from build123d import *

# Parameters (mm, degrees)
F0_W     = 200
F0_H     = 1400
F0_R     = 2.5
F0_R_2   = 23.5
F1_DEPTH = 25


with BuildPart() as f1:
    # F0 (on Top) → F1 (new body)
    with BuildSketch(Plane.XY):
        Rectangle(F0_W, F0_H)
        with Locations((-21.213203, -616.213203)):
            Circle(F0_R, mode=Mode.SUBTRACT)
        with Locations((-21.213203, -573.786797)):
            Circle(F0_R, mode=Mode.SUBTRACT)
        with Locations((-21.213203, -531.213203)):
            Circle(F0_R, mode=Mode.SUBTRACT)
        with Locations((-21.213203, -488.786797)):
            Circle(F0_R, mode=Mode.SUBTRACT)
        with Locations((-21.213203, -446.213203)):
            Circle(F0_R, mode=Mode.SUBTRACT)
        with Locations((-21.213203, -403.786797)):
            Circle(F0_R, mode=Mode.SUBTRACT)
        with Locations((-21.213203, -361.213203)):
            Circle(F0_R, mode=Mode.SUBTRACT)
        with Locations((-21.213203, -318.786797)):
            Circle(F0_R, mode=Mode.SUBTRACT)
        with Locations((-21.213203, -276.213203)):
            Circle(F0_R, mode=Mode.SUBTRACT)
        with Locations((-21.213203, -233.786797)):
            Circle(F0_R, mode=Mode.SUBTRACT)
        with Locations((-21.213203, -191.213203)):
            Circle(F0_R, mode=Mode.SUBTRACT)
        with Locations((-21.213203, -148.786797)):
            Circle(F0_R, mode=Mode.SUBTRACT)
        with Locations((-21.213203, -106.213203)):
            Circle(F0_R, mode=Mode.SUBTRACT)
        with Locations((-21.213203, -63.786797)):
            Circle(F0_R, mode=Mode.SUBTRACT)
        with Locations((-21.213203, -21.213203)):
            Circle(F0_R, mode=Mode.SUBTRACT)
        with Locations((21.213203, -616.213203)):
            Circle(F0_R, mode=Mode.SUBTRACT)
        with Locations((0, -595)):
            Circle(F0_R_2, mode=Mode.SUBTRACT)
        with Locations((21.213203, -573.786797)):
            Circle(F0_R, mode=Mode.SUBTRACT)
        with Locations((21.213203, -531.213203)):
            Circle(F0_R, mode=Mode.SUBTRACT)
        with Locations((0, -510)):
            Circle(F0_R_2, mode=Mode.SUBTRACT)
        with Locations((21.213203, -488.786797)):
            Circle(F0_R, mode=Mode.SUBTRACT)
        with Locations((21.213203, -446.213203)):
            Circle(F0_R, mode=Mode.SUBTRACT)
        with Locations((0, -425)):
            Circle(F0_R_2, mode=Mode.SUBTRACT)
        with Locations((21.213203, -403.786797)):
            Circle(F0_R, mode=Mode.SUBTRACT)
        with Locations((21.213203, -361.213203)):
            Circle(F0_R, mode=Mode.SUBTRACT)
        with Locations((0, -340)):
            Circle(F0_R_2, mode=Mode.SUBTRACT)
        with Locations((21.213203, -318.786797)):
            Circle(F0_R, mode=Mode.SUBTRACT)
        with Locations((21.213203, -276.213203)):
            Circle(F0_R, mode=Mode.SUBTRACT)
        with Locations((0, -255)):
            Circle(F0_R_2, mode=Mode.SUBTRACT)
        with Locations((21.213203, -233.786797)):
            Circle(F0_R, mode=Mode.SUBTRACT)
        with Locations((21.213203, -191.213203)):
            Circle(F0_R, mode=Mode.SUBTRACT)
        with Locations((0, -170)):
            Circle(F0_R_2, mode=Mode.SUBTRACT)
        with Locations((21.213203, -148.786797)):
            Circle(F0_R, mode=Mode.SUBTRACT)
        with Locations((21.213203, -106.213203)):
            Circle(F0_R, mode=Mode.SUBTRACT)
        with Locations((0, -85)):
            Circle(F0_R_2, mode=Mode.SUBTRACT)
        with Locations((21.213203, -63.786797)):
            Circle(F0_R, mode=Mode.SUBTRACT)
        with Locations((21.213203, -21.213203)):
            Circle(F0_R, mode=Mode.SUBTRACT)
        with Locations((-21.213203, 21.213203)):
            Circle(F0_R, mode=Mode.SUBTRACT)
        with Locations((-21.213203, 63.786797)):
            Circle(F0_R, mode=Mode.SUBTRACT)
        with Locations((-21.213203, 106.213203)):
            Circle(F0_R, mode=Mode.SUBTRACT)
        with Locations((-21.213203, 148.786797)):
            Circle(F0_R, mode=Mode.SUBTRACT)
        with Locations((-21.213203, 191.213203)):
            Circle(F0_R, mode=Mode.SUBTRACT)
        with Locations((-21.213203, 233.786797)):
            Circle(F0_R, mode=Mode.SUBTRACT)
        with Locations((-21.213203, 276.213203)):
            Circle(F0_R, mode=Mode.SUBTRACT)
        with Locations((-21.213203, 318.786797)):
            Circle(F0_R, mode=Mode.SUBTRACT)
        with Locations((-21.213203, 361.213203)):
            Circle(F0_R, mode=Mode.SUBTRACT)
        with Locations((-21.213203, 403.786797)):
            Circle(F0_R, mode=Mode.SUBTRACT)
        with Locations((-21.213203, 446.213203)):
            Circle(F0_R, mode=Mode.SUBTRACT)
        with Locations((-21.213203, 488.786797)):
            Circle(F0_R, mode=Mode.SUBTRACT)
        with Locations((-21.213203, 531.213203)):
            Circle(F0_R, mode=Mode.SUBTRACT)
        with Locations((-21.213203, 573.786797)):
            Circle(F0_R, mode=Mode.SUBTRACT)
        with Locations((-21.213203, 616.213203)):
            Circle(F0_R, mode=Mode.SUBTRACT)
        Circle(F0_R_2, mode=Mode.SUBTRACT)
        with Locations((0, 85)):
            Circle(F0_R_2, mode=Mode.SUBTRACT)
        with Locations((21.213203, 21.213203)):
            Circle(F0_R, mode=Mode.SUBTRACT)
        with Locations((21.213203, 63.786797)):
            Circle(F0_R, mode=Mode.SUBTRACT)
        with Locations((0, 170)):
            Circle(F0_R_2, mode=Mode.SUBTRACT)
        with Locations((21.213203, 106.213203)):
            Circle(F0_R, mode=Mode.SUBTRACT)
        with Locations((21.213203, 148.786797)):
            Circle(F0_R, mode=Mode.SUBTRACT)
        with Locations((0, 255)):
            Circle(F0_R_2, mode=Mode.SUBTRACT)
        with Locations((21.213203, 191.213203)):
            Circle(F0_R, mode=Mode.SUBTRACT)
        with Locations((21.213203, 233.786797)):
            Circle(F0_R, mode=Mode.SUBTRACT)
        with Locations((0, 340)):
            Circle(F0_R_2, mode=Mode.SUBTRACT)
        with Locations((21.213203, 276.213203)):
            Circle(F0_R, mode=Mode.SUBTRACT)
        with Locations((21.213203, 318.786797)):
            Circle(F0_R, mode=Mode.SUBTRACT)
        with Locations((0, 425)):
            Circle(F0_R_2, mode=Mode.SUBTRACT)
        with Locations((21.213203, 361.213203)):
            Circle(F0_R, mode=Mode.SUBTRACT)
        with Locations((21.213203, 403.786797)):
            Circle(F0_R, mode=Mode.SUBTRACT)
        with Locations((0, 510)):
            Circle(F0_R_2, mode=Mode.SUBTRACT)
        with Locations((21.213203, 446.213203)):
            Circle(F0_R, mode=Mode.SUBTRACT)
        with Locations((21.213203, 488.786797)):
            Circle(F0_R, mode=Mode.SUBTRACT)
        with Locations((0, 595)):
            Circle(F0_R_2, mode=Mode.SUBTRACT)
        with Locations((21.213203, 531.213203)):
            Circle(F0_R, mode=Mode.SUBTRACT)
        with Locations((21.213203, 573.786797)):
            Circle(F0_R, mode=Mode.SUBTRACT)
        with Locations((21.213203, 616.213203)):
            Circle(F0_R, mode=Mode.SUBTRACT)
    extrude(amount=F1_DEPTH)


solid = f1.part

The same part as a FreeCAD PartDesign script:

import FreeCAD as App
import Part
import Sketcher

V = App.Vector
Q = App.Units.Quantity


def add_polygon(sketch, points):
    """Adds a closed chain of lines whose ends are joined by coincident constraints."""
    first, n = sketch.GeometryCount, len(points)
    for a, b in zip(points, points[1:] + points[:1]):
        sketch.addGeometry(Part.LineSegment(App.Vector(*a, 0), App.Vector(*b, 0)), False)
    for i in range(n):
        sketch.addConstraint(Sketcher.Constraint("Coincident", first + i, 2, first + (i + 1) % n, 1))

doc = App.newDocument("Part")
body = doc.addObject("PartDesign::Body", "Body")

# Sketch on XY plane
sketch1 = body.newObject("Sketcher::SketchObject", "Sketch")
sketch1.AttachmentSupport = (doc.getObject("XY_Plane"), [""])
sketch1.MapMode = "FlatFace"
add_polygon(sketch1, [(-100, 700), (-100, -700), (100, -700), (100, 700)])  # lines 0-3
sketch1.addGeometry(Part.Circle(V(-21.2, -616.2, 0), V(0, 0, 1), 2.5), False)  # 4
sketch1.addGeometry(Part.Circle(V(-21.2, -573.8, 0), V(0, 0, 1), 2.5), False)  # 5
sketch1.addGeometry(Part.Circle(V(-21.2, -531.2, 0), V(0, 0, 1), 2.5), False)  # 6
sketch1.addGeometry(Part.Circle(V(-21.2, -488.8, 0), V(0, 0, 1), 2.5), False)  # 7
sketch1.addGeometry(Part.Circle(V(-21.2, -446.2, 0), V(0, 0, 1), 2.5), False)  # 8
sketch1.addGeometry(Part.Circle(V(-21.2, -403.8, 0), V(0, 0, 1), 2.5), False)  # 9
sketch1.addGeometry(Part.Circle(V(-21.2, -361.2, 0), V(0, 0, 1), 2.5), False)  # 10
sketch1.addGeometry(Part.Circle(V(-21.2, -318.8, 0), V(0, 0, 1), 2.5), False)  # 11
sketch1.addGeometry(Part.Circle(V(-21.2, -276.2, 0), V(0, 0, 1), 2.5), False)  # 12
sketch1.addGeometry(Part.Circle(V(-21.2, -233.8, 0), V(0, 0, 1), 2.5), False)  # 13
sketch1.addGeometry(Part.Circle(V(-21.2, -191.2, 0), V(0, 0, 1), 2.5), False)  # 14
sketch1.addGeometry(Part.Circle(V(-21.2, -148.8, 0), V(0, 0, 1), 2.5), False)  # 15
sketch1.addGeometry(Part.Circle(V(-21.2, -106.2, 0), V(0, 0, 1), 2.5), False)  # 16
sketch1.addGeometry(Part.Circle(V(-21.2, -63.8, 0), V(0, 0, 1), 2.5), False)  # 17
sketch1.addGeometry(Part.Circle(V(-21.2, -21.2, 0), V(0, 0, 1), 2.5), False)  # 18
sketch1.addGeometry(Part.Circle(V(0, -595, 0), V(0, 0, 1), 23.5), False)  # 19
sketch1.addGeometry(Part.Circle(V(0, -510, 0), V(0, 0, 1), 23.5), False)  # 20
sketch1.addGeometry(Part.Circle(V(0, -425, 0), V(0, 0, 1), 23.5), False)  # 21
sketch1.addGeometry(Part.Circle(V(0, -340, 0), V(0, 0, 1), 23.5), False)  # 22
sketch1.addGeometry(Part.Circle(V(21.2, -616.2, 0), V(0, 0, 1), 2.5), False)  # 23
sketch1.addGeometry(Part.Circle(V(21.2, -573.8, 0), V(0, 0, 1), 2.5), False)  # 24
sketch1.addGeometry(Part.Circle(V(21.2, -531.2, 0), V(0, 0, 1), 2.5), False)  # 25
sketch1.addGeometry(Part.Circle(V(21.2, -488.8, 0), V(0, 0, 1), 2.5), False)  # 26
sketch1.addGeometry(Part.Circle(V(21.2, -446.2, 0), V(0, 0, 1), 2.5), False)  # 27
sketch1.addGeometry(Part.Circle(V(21.2, -403.8, 0), V(0, 0, 1), 2.5), False)  # 28
sketch1.addGeometry(Part.Circle(V(21.2, -361.2, 0), V(0, 0, 1), 2.5), False)  # 29
sketch1.addGeometry(Part.Circle(V(21.2, -318.8, 0), V(0, 0, 1), 2.5), False)  # 30
sketch1.addGeometry(Part.Circle(V(0, -255, 0), V(0, 0, 1), 23.5), False)  # 31
sketch1.addGeometry(Part.Circle(V(0, -170, 0), V(0, 0, 1), 23.5), False)  # 32
sketch1.addGeometry(Part.Circle(V(0, -85, 0), V(0, 0, 1), 23.5), False)  # 33
sketch1.addGeometry(Part.Circle(V(21.2, -276.2, 0), V(0, 0, 1), 2.5), False)  # 34
sketch1.addGeometry(Part.Circle(V(21.2, -233.8, 0), V(0, 0, 1), 2.5), False)  # 35
sketch1.addGeometry(Part.Circle(V(21.2, -191.2, 0), V(0, 0, 1), 2.5), False)  # 36
sketch1.addGeometry(Part.Circle(V(21.2, -148.8, 0), V(0, 0, 1), 2.5), False)  # 37
sketch1.addGeometry(Part.Circle(V(21.2, -106.2, 0), V(0, 0, 1), 2.5), False)  # 38
sketch1.addGeometry(Part.Circle(V(21.2, -63.8, 0), V(0, 0, 1), 2.5), False)  # 39
sketch1.addGeometry(Part.Circle(V(21.2, -21.2, 0), V(0, 0, 1), 2.5), False)  # 40
sketch1.addGeometry(Part.Circle(V(-21.2, 21.2, 0), V(0, 0, 1), 2.5), False)  # 41
sketch1.addGeometry(Part.Circle(V(-21.2, 63.8, 0), V(0, 0, 1), 2.5), False)  # 42
sketch1.addGeometry(Part.Circle(V(-21.2, 106.2, 0), V(0, 0, 1), 2.5), False)  # 43
sketch1.addGeometry(Part.Circle(V(-21.2, 148.8, 0), V(0, 0, 1), 2.5), False)  # 44
sketch1.addGeometry(Part.Circle(V(-21.2, 191.2, 0), V(0, 0, 1), 2.5), False)  # 45
sketch1.addGeometry(Part.Circle(V(-21.2, 233.8, 0), V(0, 0, 1), 2.5), False)  # 46
sketch1.addGeometry(Part.Circle(V(-21.2, 276.2, 0), V(0, 0, 1), 2.5), False)  # 47
sketch1.addGeometry(Part.Circle(V(-21.2, 318.8, 0), V(0, 0, 1), 2.5), False)  # 48
sketch1.addGeometry(Part.Circle(V(-21.2, 361.2, 0), V(0, 0, 1), 2.5), False)  # 49
sketch1.addGeometry(Part.Circle(V(-21.2, 403.8, 0), V(0, 0, 1), 2.5), False)  # 50
sketch1.addGeometry(Part.Circle(V(-21.2, 446.2, 0), V(0, 0, 1), 2.5), False)  # 51
sketch1.addGeometry(Part.Circle(V(-21.2, 488.8, 0), V(0, 0, 1), 2.5), False)  # 52
sketch1.addGeometry(Part.Circle(V(-21.2, 531.2, 0), V(0, 0, 1), 2.5), False)  # 53
sketch1.addGeometry(Part.Circle(V(-21.2, 573.8, 0), V(0, 0, 1), 2.5), False)  # 54
sketch1.addGeometry(Part.Circle(V(-21.2, 616.2, 0), V(0, 0, 1), 2.5), False)  # 55
sketch1.addGeometry(Part.Circle(V(0, 0, 0), V(0, 0, 1), 23.5), False)  # 56
sketch1.addGeometry(Part.Circle(V(0, 85, 0), V(0, 0, 1), 23.5), False)  # 57
sketch1.addGeometry(Part.Circle(V(0, 170, 0), V(0, 0, 1), 23.5), False)  # 58
sketch1.addGeometry(Part.Circle(V(0, 255, 0), V(0, 0, 1), 23.5), False)  # 59
sketch1.addGeometry(Part.Circle(V(21.2, 21.2, 0), V(0, 0, 1), 2.5), False)  # 60
sketch1.addGeometry(Part.Circle(V(21.2, 63.8, 0), V(0, 0, 1), 2.5), False)  # 61
sketch1.addGeometry(Part.Circle(V(21.2, 106.2, 0), V(0, 0, 1), 2.5), False)  # 62
sketch1.addGeometry(Part.Circle(V(21.2, 148.8, 0), V(0, 0, 1), 2.5), False)  # 63
sketch1.addGeometry(Part.Circle(V(21.2, 191.2, 0), V(0, 0, 1), 2.5), False)  # 64
sketch1.addGeometry(Part.Circle(V(21.2, 233.8, 0), V(0, 0, 1), 2.5), False)  # 65
sketch1.addGeometry(Part.Circle(V(21.2, 276.2, 0), V(0, 0, 1), 2.5), False)  # 66
sketch1.addGeometry(Part.Circle(V(0, 340, 0), V(0, 0, 1), 23.5), False)  # 67
sketch1.addGeometry(Part.Circle(V(0, 425, 0), V(0, 0, 1), 23.5), False)  # 68
sketch1.addGeometry(Part.Circle(V(0, 510, 0), V(0, 0, 1), 23.5), False)  # 69
sketch1.addGeometry(Part.Circle(V(0, 595, 0), V(0, 0, 1), 23.5), False)  # 70
sketch1.addGeometry(Part.Circle(V(21.2, 318.8, 0), V(0, 0, 1), 2.5), False)  # 71
sketch1.addGeometry(Part.Circle(V(21.2, 361.2, 0), V(0, 0, 1), 2.5), False)  # 72
sketch1.addGeometry(Part.Circle(V(21.2, 403.8, 0), V(0, 0, 1), 2.5), False)  # 73
sketch1.addGeometry(Part.Circle(V(21.2, 446.2, 0), V(0, 0, 1), 2.5), False)  # 74
sketch1.addGeometry(Part.Circle(V(21.2, 488.8, 0), V(0, 0, 1), 2.5), False)  # 75
sketch1.addGeometry(Part.Circle(V(21.2, 531.2, 0), V(0, 0, 1), 2.5), False)  # 76
sketch1.addGeometry(Part.Circle(V(21.2, 573.8, 0), V(0, 0, 1), 2.5), False)  # 77
sketch1.addGeometry(Part.Circle(V(21.2, 616.2, 0), V(0, 0, 1), 2.5), False)  # 78
sketch1.addConstraint([
    Sketcher.Constraint("Vertical", 0),
    Sketcher.Constraint("Horizontal", 1),
    Sketcher.Constraint("Vertical", 2),
    Sketcher.Constraint("Horizontal", 3),
    Sketcher.Constraint("Coincident", 56, 3, -1, 1),
    Sketcher.Constraint("Equal", 4, 5),
    Sketcher.Constraint("Equal", 5, 6),
    Sketcher.Constraint("Equal", 6, 7),
    Sketcher.Constraint("Equal", 7, 8),
    Sketcher.Constraint("Equal", 8, 9),
    Sketcher.Constraint("Equal", 9, 10),
    Sketcher.Constraint("Equal", 10, 11),
    Sketcher.Constraint("Equal", 11, 12),
    Sketcher.Constraint("Equal", 12, 13),
    Sketcher.Constraint("Equal", 13, 14),
    Sketcher.Constraint("Equal", 14, 15),
    Sketcher.Constraint("Equal", 15, 16),
    Sketcher.Constraint("Equal", 16, 17),
    Sketcher.Constraint("Equal", 17, 18),
    Sketcher.Constraint("Equal", 19, 20),
    Sketcher.Constraint("Equal", 20, 21),
    Sketcher.Constraint("Equal", 21, 22),
    Sketcher.Constraint("Equal", 18, 23),
    Sketcher.Constraint("Equal", 23, 24),
    Sketcher.Constraint("Equal", 24, 25),
    Sketcher.Constraint("Equal", 25, 26),
    Sketcher.Constraint("Equal", 26, 27),
    Sketcher.Constraint("Equal", 27, 28),
    Sketcher.Constraint("Equal", 28, 29),
    Sketcher.Constraint("Equal", 29, 30),
    Sketcher.Constraint("Equal", 22, 31),
    Sketcher.Constraint("Equal", 31, 32),
    Sketcher.Constraint("Equal", 32, 33),
    Sketcher.Constraint("Equal", 30, 34),
    Sketcher.Constraint("Equal", 34, 35),
    Sketcher.Constraint("Equal", 35, 36),
    Sketcher.Constraint("Equal", 36, 37),
    Sketcher.Constraint("Equal", 37, 38),
    Sketcher.Constraint("Equal", 38, 39),
    Sketcher.Constraint("Equal", 39, 40),
    Sketcher.Constraint("Equal", 40, 41),
    Sketcher.Constraint("Equal", 41, 42),
    Sketcher.Constraint("Equal", 42, 43),
    Sketcher.Constraint("Equal", 43, 44),
    Sketcher.Constraint("Equal", 44, 45),
    Sketcher.Constraint("Equal", 45, 46),
    Sketcher.Constraint("Equal", 46, 47),
    Sketcher.Constraint("Equal", 47, 48),
    Sketcher.Constraint("Equal", 48, 49),
    Sketcher.Constraint("Equal", 49, 50),
    Sketcher.Constraint("Equal", 50, 51),
    Sketcher.Constraint("Equal", 51, 52),
    Sketcher.Constraint("Equal", 52, 53),
    Sketcher.Constraint("Equal", 53, 54),
    Sketcher.Constraint("Equal", 54, 55),
    Sketcher.Constraint("Equal", 33, 56),
    Sketcher.Constraint("Equal", 56, 57),
    Sketcher.Constraint("Equal", 57, 58),
    Sketcher.Constraint("Equal", 58, 59),
    Sketcher.Constraint("Equal", 55, 60),
    Sketcher.Constraint("Equal", 60, 61),
    Sketcher.Constraint("Equal", 61, 62),
    Sketcher.Constraint("Equal", 62, 63),
    Sketcher.Constraint("Equal", 63, 64),
    Sketcher.Constraint("Equal", 64, 65),
    Sketcher.Constraint("Equal", 65, 66),
    Sketcher.Constraint("Equal", 59, 67),
    Sketcher.Constraint("Equal", 67, 68),
    Sketcher.Constraint("Equal", 68, 69),
    Sketcher.Constraint("Equal", 69, 70),
    Sketcher.Constraint("Equal", 66, 71),
    Sketcher.Constraint("Equal", 71, 72),
    Sketcher.Constraint("Equal", 72, 73),
    Sketcher.Constraint("Equal", 73, 74),
    Sketcher.Constraint("Equal", 74, 75),
    Sketcher.Constraint("Equal", 75, 76),
    Sketcher.Constraint("Equal", 76, 77),
    Sketcher.Constraint("Equal", 77, 78),
    Sketcher.Constraint("Symmetric", 40, 3, 41, 3, -1, 1),
    Sketcher.Constraint("Symmetric", 39, 3, 42, 3, -1, 1),
    Sketcher.Constraint("Symmetric", 38, 3, 43, 3, -1, 1),
    Sketcher.Constraint("Symmetric", 37, 3, 44, 3, -1, 1),
    Sketcher.Constraint("Symmetric", 36, 3, 45, 3, -1, 1),
    Sketcher.Constraint("Symmetric", 35, 3, 46, 3, -1, 1),
    Sketcher.Constraint("Symmetric", 34, 3, 47, 3, -1, 1),
    Sketcher.Constraint("Symmetric", 30, 3, 48, 3, -1, 1),
    Sketcher.Constraint("Symmetric", 29, 3, 49, 3, -1, 1),
    Sketcher.Constraint("Symmetric", 28, 3, 50, 3, -1, 1),
    Sketcher.Constraint("Symmetric", 27, 3, 51, 3, -1, 1),
    Sketcher.Constraint("Symmetric", 26, 3, 52, 3, -1, 1),
    Sketcher.Constraint("Symmetric", 25, 3, 53, 3, -1, 1),
    Sketcher.Constraint("Symmetric", 24, 3, 54, 3, -1, 1),
    Sketcher.Constraint("Symmetric", 23, 3, 55, 3, -1, 1),
    Sketcher.Constraint("Symmetric", 33, 3, 57, 3, -1, 1),
    Sketcher.Constraint("Symmetric", 32, 3, 58, 3, -1, 1),
    Sketcher.Constraint("Symmetric", 31, 3, 59, 3, -1, 1),
    Sketcher.Constraint("Symmetric", 18, 3, 60, 3, -1, 1),
    Sketcher.Constraint("Symmetric", 17, 3, 61, 3, -1, 1),
    Sketcher.Constraint("Symmetric", 16, 3, 62, 3, -1, 1),
    Sketcher.Constraint("Symmetric", 15, 3, 63, 3, -1, 1),
    Sketcher.Constraint("Symmetric", 14, 3, 64, 3, -1, 1),
    Sketcher.Constraint("Symmetric", 13, 3, 65, 3, -1, 1),
    Sketcher.Constraint("Symmetric", 12, 3, 66, 3, -1, 1),
    Sketcher.Constraint("Symmetric", 22, 3, 67, 3, -1, 1),
    Sketcher.Constraint("Symmetric", 21, 3, 68, 3, -1, 1),
    Sketcher.Constraint("Symmetric", 20, 3, 69, 3, -1, 1),
    Sketcher.Constraint("Symmetric", 19, 3, 70, 3, -1, 1),
    Sketcher.Constraint("Symmetric", 11, 3, 71, 3, -1, 1),
    Sketcher.Constraint("Symmetric", 10, 3, 72, 3, -1, 1),
    Sketcher.Constraint("Symmetric", 9, 3, 73, 3, -1, 1),
    Sketcher.Constraint("Symmetric", 8, 3, 74, 3, -1, 1),
    Sketcher.Constraint("Symmetric", 7, 3, 75, 3, -1, 1),
    Sketcher.Constraint("Symmetric", 6, 3, 76, 3, -1, 1),
    Sketcher.Constraint("Symmetric", 5, 3, 77, 3, -1, 1),
    Sketcher.Constraint("Symmetric", 4, 3, 78, 3, -1, 1),
    Sketcher.Constraint("Symmetric", 0, 2, 2, 2, -1, 1),
    Sketcher.Constraint("Symmetric", 4, 3, 23, 3, -2),
    Sketcher.Constraint("Symmetric", 5, 3, 24, 3, -2),
    Sketcher.Constraint("Symmetric", 6, 3, 25, 3, -2),
    Sketcher.Constraint("Symmetric", 7, 3, 26, 3, -2),
    Sketcher.Constraint("Symmetric", 8, 3, 27, 3, -2),
    Sketcher.Constraint("Symmetric", 9, 3, 28, 3, -2),
    Sketcher.Constraint("Symmetric", 10, 3, 29, 3, -2),
    Sketcher.Constraint("Symmetric", 11, 3, 30, 3, -2),
    Sketcher.Constraint("Symmetric", 12, 3, 34, 3, -2),
    Sketcher.Constraint("Symmetric", 13, 3, 35, 3, -2),
    Sketcher.Constraint("Symmetric", 14, 3, 36, 3, -2),
    Sketcher.Constraint("Symmetric", 15, 3, 37, 3, -2),
    Sketcher.Constraint("Symmetric", 16, 3, 38, 3, -2),
    Sketcher.Constraint("Symmetric", 17, 3, 39, 3, -2),
    Sketcher.Constraint("Symmetric", 18, 3, 40, 3, -2),
    Sketcher.Constraint("PointOnObject", 19, 3, -2),
    Sketcher.Constraint("PointOnObject", 20, 3, -2),
    Sketcher.Constraint("PointOnObject", 21, 3, -2),
    Sketcher.Constraint("PointOnObject", 22, 3, -2),
    Sketcher.Constraint("PointOnObject", 31, 3, -2),
    Sketcher.Constraint("PointOnObject", 32, 3, -2),
    Sketcher.Constraint("PointOnObject", 33, 3, -2),
    Sketcher.Constraint("Vertical", 4, 3, 5, 3),
    Sketcher.Constraint("Vertical", 5, 3, 6, 3),
    Sketcher.Constraint("Vertical", 6, 3, 7, 3),
    Sketcher.Constraint("Vertical", 7, 3, 8, 3),
    Sketcher.Constraint("Vertical", 8, 3, 9, 3),
    Sketcher.Constraint("Vertical", 9, 3, 10, 3),
    Sketcher.Constraint("Vertical", 10, 3, 11, 3),
    Sketcher.Constraint("Vertical", 11, 3, 12, 3),
    Sketcher.Constraint("Vertical", 12, 3, 13, 3),
    Sketcher.Constraint("Vertical", 13, 3, 14, 3),
    Sketcher.Constraint("Vertical", 14, 3, 15, 3),
    Sketcher.Constraint("Vertical", 15, 3, 16, 3),
    Sketcher.Constraint("Vertical", 16, 3, 17, 3),
    Sketcher.Constraint("Vertical", 17, 3, 18, 3),
    Sketcher.Constraint("Diameter", 4, Q("5 mm")),
    Sketcher.Constraint("Diameter", 19, Q("47 mm")),
    Sketcher.Constraint("DistanceX", 1, 1, 1, 2, Q("200 mm")),
    Sketcher.Constraint("DistanceY", 0, 2, 0, 1, Q("1400 mm")),
    Sketcher.Constraint("DistanceY", 19, 3, -1, 1, Q("595 mm")),
    Sketcher.Constraint("DistanceY", 20, 3, -1, 1, Q("510 mm")),
    Sketcher.Constraint("DistanceY", 21, 3, -1, 1, Q("425 mm")),
    Sketcher.Constraint("DistanceY", 22, 3, -1, 1, Q("340 mm")),
    Sketcher.Constraint("DistanceY", 31, 3, -1, 1, Q("255 mm")),
    Sketcher.Constraint("DistanceY", 32, 3, -1, 1, Q("170 mm")),
    Sketcher.Constraint("DistanceY", 33, 3, -1, 1, Q("85 mm")),
    Sketcher.Constraint("DistanceX", 4, 3, -1, 1, Q("21.213203 mm")),
    Sketcher.Constraint("DistanceY", 4, 3, -1, 1, Q("616.213203 mm")),
    Sketcher.Constraint("DistanceY", 5, 3, -1, 1, Q("573.786797 mm")),
    Sketcher.Constraint("DistanceY", 6, 3, -1, 1, Q("531.213203 mm")),
    Sketcher.Constraint("DistanceY", 7, 3, -1, 1, Q("488.786797 mm")),
    Sketcher.Constraint("DistanceY", 8, 3, -1, 1, Q("446.213203 mm")),
    Sketcher.Constraint("DistanceY", 9, 3, -1, 1, Q("403.786797 mm")),
    Sketcher.Constraint("DistanceY", 10, 3, -1, 1, Q("361.213203 mm")),
    Sketcher.Constraint("DistanceY", 11, 3, -1, 1, Q("318.786797 mm")),
    Sketcher.Constraint("DistanceY", 12, 3, -1, 1, Q("276.213203 mm")),
    Sketcher.Constraint("DistanceY", 13, 3, -1, 1, Q("233.786797 mm")),
    Sketcher.Constraint("DistanceY", 14, 3, -1, 1, Q("191.213203 mm")),
    Sketcher.Constraint("DistanceY", 15, 3, -1, 1, Q("148.786797 mm")),
    Sketcher.Constraint("DistanceY", 16, 3, -1, 1, Q("106.213203 mm")),
    Sketcher.Constraint("DistanceY", 17, 3, -1, 1, Q("63.786797 mm")),
    Sketcher.Constraint("DistanceY", 18, 3, -1, 1, Q("21.213203 mm")),
])
pad1 = body.newObject("PartDesign::Pad", "Pad")
pad1.Profile = sketch1
pad1.Length = 25

doc.recompute()
